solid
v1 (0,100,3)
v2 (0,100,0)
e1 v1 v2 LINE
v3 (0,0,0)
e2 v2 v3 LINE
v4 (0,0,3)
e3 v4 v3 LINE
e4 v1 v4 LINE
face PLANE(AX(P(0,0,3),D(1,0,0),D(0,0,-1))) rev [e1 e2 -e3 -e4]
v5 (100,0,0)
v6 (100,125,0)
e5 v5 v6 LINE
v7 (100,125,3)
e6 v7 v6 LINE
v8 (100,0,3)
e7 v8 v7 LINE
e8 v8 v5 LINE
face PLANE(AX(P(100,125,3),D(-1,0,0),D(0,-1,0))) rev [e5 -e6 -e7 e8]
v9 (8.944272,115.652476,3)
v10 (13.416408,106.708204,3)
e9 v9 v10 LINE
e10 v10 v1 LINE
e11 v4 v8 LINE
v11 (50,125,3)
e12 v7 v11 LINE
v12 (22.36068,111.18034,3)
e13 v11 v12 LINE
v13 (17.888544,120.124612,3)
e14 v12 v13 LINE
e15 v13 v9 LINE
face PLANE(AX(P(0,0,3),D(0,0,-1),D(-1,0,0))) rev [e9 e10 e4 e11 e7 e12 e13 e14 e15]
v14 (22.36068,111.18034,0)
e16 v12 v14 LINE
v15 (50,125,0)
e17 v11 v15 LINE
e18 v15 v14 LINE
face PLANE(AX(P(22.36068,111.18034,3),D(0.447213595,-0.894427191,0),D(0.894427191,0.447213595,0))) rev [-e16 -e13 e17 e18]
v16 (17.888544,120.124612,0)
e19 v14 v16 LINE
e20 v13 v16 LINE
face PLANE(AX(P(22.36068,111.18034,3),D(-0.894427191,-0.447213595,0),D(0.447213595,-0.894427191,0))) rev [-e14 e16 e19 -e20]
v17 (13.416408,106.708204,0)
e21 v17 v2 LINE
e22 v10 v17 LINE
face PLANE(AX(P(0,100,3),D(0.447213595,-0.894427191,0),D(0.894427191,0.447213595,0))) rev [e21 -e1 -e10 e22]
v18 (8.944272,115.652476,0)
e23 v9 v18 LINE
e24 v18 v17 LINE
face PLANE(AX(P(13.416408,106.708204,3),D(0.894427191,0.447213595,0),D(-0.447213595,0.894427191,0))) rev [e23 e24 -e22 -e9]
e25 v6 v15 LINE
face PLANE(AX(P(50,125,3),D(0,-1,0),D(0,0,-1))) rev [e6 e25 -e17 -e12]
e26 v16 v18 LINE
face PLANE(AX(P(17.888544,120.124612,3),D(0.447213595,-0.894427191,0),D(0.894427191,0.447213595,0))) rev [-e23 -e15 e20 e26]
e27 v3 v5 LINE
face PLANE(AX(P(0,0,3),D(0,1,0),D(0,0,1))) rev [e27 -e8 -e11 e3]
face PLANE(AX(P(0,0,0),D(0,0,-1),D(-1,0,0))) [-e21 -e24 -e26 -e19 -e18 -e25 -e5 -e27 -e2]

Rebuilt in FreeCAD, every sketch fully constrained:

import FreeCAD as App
import Part
import Sketcher
Q = App.Units.Quantity


def add_polygon(sketch, points):
    """Adds a closed chain of lines whose ends are joined by coincident constraints."""
    first, n = sketch.GeometryCount, len(points)
    for a, b in zip(points, points[1:] + points[:1]):
        sketch.addGeometry(Part.LineSegment(App.Vector(*a, 0), App.Vector(*b, 0)), False)
    for i in range(n):
        sketch.addConstraint(Sketcher.Constraint("Coincident", first + i, 2, first + (i + 1) % n, 1))

doc = App.newDocument("Part")
params = doc.addObject("Spreadsheet::Sheet", "Params")
for row, (alias, value) in enumerate([
    ("sketch1_width", "100 mm"),
    ("sketch1_width2", "50 mm"),
    ("sketch1_height", "125 mm"),
    ("sketch1_length", "10 mm"),
    ("sketch1_length2", "15 mm"),
    ("pad1_length", "3 mm"),
], start=1):
    params.set(f"A{row}", alias)
    params.set(f"B{row}", "=" + value)
    params.setAlias(f"B{row}", alias)

body = doc.addObject("PartDesign::Body", "Body")

# Sketch on XY plane
sketch1 = doc.addObject("Sketcher::SketchObject", "Sketch")
body.addObject(sketch1)
sketch1.AttachmentSupport = (doc.XY_Plane, [""])
sketch1.MapMode = "FlatFace"
add_polygon(sketch1, [(0, 0), (100, 0), (100, 125), (50, 125), (22, 111), (18, 120), (9, 116), (13, 107), (0, 100)])  # lines 0-8
sketch1.addConstraint(Sketcher.Constraint("Horizontal", 0))
sketch1.addConstraint(Sketcher.Constraint("Vertical", 1))
sketch1.addConstraint(Sketcher.Constraint("Horizontal", 2))
sketch1.addConstraint(Sketcher.Constraint("Vertical", 8))
sketch1.addConstraint(Sketcher.Constraint("Coincident", 8, 2, -1, 1))
sketch1.addConstraint(Sketcher.Constraint("Perpendicular", 3, 4))
sketch1.addConstraint(Sketcher.Constraint("Perpendicular", 4, 5))
sketch1.addConstraint(Sketcher.Constraint("Perpendicular", 5, 6))
sketch1.addConstraint(Sketcher.Constraint("Perpendicular", 6, 7))
sketch1.addConstraint(Sketcher.Constraint("Equal", 0, 8))
sketch1.addConstraint(Sketcher.Constraint("Equal", 4, 5))
sketch1.addConstraint(Sketcher.Constraint("Equal", 5, 6))
sketch1.addConstraint(Sketcher.Constraint("DistanceX", 0, 1, 0, 2, Q("100 mm")))
sketch1.addConstraint(Sketcher.Constraint("DistanceX", 2, 2, 2, 1, Q("50 mm")))
sketch1.addConstraint(Sketcher.Constraint("DistanceY", 1, 1, 1, 2, Q("125 mm")))
sketch1.addConstraint(Sketcher.Constraint("Distance", 4, Q("10 mm")))
sketch1.addConstraint(Sketcher.Constraint("Distance", 7, Q("15 mm")))
sketch1.setExpression("Constraints[21]", "Params.sketch1_width")
sketch1.setExpression("Constraints[22]", "Params.sketch1_width2")
sketch1.setExpression("Constraints[23]", "Params.sketch1_height")
sketch1.setExpression("Constraints[24]", "Params.sketch1_length")
sketch1.setExpression("Constraints[25]", "Params.sketch1_length2")
pad1 = doc.addObject("PartDesign::Pad", "Pad")
body.addObject(pad1)
pad1.Profile = sketch1
pad1.setExpression("Length", "Params.pad1_length")

doc.recompute()
